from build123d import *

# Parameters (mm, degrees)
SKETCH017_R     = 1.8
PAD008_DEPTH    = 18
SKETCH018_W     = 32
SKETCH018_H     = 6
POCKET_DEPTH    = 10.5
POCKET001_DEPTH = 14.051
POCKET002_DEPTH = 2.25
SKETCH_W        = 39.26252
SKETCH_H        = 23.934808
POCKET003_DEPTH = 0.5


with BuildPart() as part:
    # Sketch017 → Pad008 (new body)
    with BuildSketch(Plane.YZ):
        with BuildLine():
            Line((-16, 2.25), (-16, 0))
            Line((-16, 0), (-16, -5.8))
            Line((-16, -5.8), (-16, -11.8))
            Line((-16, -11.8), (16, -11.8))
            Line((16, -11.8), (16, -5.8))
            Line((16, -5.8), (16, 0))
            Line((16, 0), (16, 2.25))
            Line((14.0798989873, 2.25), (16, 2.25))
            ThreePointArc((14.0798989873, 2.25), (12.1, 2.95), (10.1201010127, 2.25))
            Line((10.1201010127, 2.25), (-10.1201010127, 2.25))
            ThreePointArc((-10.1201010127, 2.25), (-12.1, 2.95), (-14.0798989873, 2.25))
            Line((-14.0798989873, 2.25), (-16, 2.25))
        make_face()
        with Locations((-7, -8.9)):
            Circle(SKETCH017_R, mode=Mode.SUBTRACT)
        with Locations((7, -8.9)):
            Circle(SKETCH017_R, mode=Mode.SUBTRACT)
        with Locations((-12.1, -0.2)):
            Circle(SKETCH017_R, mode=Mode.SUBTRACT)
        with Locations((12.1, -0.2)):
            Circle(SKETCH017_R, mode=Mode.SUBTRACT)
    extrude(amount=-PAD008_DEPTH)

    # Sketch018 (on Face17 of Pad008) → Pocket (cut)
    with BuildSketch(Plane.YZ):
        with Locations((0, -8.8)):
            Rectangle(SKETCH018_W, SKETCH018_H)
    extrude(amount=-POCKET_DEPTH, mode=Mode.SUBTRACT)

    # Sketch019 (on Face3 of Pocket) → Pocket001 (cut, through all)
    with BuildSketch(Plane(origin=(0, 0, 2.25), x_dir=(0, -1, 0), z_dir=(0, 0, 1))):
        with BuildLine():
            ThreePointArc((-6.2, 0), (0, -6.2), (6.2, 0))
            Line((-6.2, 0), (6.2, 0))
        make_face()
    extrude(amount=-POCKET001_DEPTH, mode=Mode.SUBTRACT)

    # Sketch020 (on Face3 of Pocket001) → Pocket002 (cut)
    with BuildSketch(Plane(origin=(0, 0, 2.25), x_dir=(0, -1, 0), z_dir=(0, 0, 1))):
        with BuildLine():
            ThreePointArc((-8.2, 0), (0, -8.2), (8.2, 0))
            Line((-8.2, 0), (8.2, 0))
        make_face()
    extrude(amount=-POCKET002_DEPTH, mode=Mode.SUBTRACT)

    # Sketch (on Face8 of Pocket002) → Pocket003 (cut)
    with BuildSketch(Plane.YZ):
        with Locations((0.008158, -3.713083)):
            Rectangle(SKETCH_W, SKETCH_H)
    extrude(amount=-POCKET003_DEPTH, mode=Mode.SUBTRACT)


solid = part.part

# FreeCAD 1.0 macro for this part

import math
import FreeCAD as App
import Part
import Sketcher
Q = App.Units.Quantity

doc = App.newDocument("Part")
body = doc.addObject("PartDesign::Body", "Body")

sketch1 = doc.addObject("Sketcher::SketchObject", "Sketch")
body.addObject(sketch1)
sketch1.AttachmentSupport = (doc.YZ_Plane, [""])
sketch1.MapMode = "FlatFace"
sketch1.addGeometry([
    Part.LineSegment(App.Vector(-16, 2.2, 0), App.Vector(-16, -11.8, 0)),
    Part.LineSegment(App.Vector(-16, -11.8, 0), App.Vector(16, -11.8, 0)),
    Part.LineSegment(App.Vector(16, -11.8, 0), App.Vector(16, 2.2, 0)),
    Part.LineSegment(App.Vector(16, 2.2, 0), App.Vector(14.1, 2.2, 0)),
    Part.ArcOfCircle(Part.Circle(App.Vector(12.1, -0.2, 0), App.Vector(0, 0, 1), 3.1), math.radians(51), math.radians(129)),
    Part.LineSegment(App.Vector(10.1, 2.2, 0), App.Vector(-10.1, 2.2, 0)),
    Part.ArcOfCircle(Part.Circle(App.Vector(-12.1, -0.2, 0), App.Vector(0, 0, 1), 3.1), math.radians(51), math.radians(129)),
    Part.LineSegment(App.Vector(-14.1, 2.2, 0), App.Vector(-16, 2.2, 0)),
    Part.Circle(App.Vector(-7, -8.9, 0), App.Vector(0, 0, 1), 1.8),
    Part.Circle(App.Vector(7, -8.9, 0), App.Vector(0, 0, 1), 1.8),
    Part.Circle(App.Vector(-12.1, -0.2, 0), App.Vector(0, 0, 1), 1.8),
    Part.Circle(App.Vector(12.1, -0.2, 0), App.Vector(0, 0, 1), 1.8),
], False)
sketch1.addConstraint([
    Sketcher.Constraint("Coincident", 0, 2, 1, 1),
    Sketcher.Constraint("Coincident", 1, 2, 2, 1),
    Sketcher.Constraint("Coincident", 2, 2, 3, 1),
    Sketcher.Constraint("Coincident", 3, 2, 4, 1),
    Sketcher.Constraint("Coincident", 4, 2, 5, 1),
    Sketcher.Constraint("Coincident", 5, 2, 6, 1),
    Sketcher.Constraint("Coincident", 6, 2, 7, 1),
    Sketcher.Constraint("Coincident", 7, 2, 0, 1),
    Sketcher.Constraint("Vertical", 0),
    Sketcher.Constraint("Horizontal", 1),
    Sketcher.Constraint("Vertical", 2),
    Sketcher.Constraint("Horizontal", 3),
    Sketcher.Constraint("Horizontal", 5),
    Sketcher.Constraint("Horizontal", 7),
    Sketcher.Constraint("Coincident", 10, 3, 6, 3),
    Sketcher.Constraint("Coincident", 11, 3, 4, 3),
    Sketcher.Constraint("Equal", 4, 6),
    Sketcher.Constraint("Equal", 8, 9),
    Sketcher.Constraint("Equal", 9, 10),
    Sketcher.Constraint("Equal", 10, 11),
    Sketcher.Constraint("Symmetric", 4, 3, 6, 3, -2),
    Sketcher.Constraint("Symmetric", 8, 3, 9, 3, -2),
    Sketcher.Constraint("Symmetric", 2, 2, 7, 2, -2),
    Sketcher.Constraint("Horizontal", 3, 2, 4, 2),
    Sketcher.Constraint("Diameter", 8, Q("3.6 mm")),
    Sketcher.Constraint("DistanceX", 1, 1, 1, 2, Q("32 mm")),
    Sketcher.Constraint("Radius", 4, Q("3.15 mm")),
    Sketcher.Constraint("DistanceX", 8, 3, -1, 1, Q("7 mm")),
    Sketcher.Constraint("DistanceY", 0, 2, 0, 1, Q("14.05 mm")),
    Sketcher.Constraint("DistanceX", -1, 1, 4, 3, Q("12.1 mm")),
    Sketcher.Constraint("DistanceY", 4, 3, -1, 1, Q("0.2 mm")),
    Sketcher.Constraint("DistanceY", 8, 3, -1, 1, Q("8.9 mm")),
    Sketcher.Constraint("DistanceY", 0, 2, -1, 1, Q("11.8 mm")),
])
pad1 = doc.addObject("PartDesign::Pad", "Pad")
body.addObject(pad1)
pad1.Profile = sketch1
pad1.Length = 18
pad1.Reversed = True

sketch2 = doc.addObject("Sketcher::SketchObject", "Sketch001")
body.addObject(sketch2)
sketch2.AttachmentSupport = (doc.YZ_Plane, [""])
sketch2.MapMode = "FlatFace"
sketch2.addGeometry([
    Part.LineSegment(App.Vector(-16, -6, 0), App.Vector(-16, -12, 0)),
    Part.LineSegment(App.Vector(-16, -12, 0), App.Vector(16, -12, 0)),
    Part.LineSegment(App.Vector(16, -12, 0), App.Vector(16, -6, 0)),
    Part.LineSegment(App.Vector(16, -6, 0), App.Vector(-16, -6, 0)),
], False)
sketch2.addConstraint([
    Sketcher.Constraint("Coincident", 0, 2, 1, 1),
    Sketcher.Constraint("Coincident", 1, 2, 2, 1),
    Sketcher.Constraint("Coincident", 2, 2, 3, 1),
    Sketcher.Constraint("Coincident", 3, 2, 0, 1),
    Sketcher.Constraint("Vertical", 0),
    Sketcher.Constraint("Horizontal", 1),
    Sketcher.Constraint("Vertical", 2),
    Sketcher.Constraint("Horizontal", 3),
    Sketcher.Constraint("DistanceX", 1, 1, 1, 2, Q("32 mm")),
    Sketcher.Constraint("DistanceY", 0, 2, 0, 1, Q("6 mm")),
    Sketcher.Constraint("DistanceX", 0, 2, -1, 1, Q("16 mm")),
    Sketcher.Constraint("DistanceY", 0, 2, -1, 1, Q("11.8 mm")),
])
pocket1 = doc.addObject("PartDesign::Pocket", "Pocket")
body.addObject(pocket1)
pocket1.Profile = sketch2
pocket1.Length = 10.5

sketch3 = doc.addObject("Sketcher::SketchObject", "Sketch002")
body.addObject(sketch3)
sketch3.AttachmentSupport = (doc.XY_Plane, [""])
sketch3.MapMode = "FlatFace"
sketch3.AttachmentOffset = App.Placement(App.Vector(0, 0, 2.25), App.Rotation())
sketch3.addGeometry([
    Part.ArcOfCircle(Part.Circle(App.Vector(0, 0, 0), App.Vector(0, 0, 1), 6), math.radians(90), math.radians(270)),
    Part.LineSegment(App.Vector(0, -6, 0), App.Vector(0, 6, 0)),
], False)
sketch3.addConstraint([
    Sketcher.Constraint("Coincident", 0, 1, 1, 2),
    Sketcher.Constraint("Coincident", 1, 1, 0, 2),
    Sketcher.Constraint("Vertical", 1),
    Sketcher.Constraint("Coincident", 0, 3, -1, 1),
    Sketcher.Constraint("PointOnObject", 0, 1, -2),
    Sketcher.Constraint("Radius", 0, Q("6.2 mm")),
])
pocket2 = doc.addObject("PartDesign::Pocket", "Pocket001")
body.addObject(pocket2)
pocket2.Profile = sketch3
pocket2.Type = "ThroughAll"

sketch4 = doc.addObject("Sketcher::SketchObject", "Sketch003")
body.addObject(sketch4)
sketch4.AttachmentSupport = (doc.XY_Plane, [""])
sketch4.MapMode = "FlatFace"
sketch4.AttachmentOffset = App.Placement(App.Vector(0, 0, 2.25), App.Rotation())
sketch4.addGeometry([
    Part.ArcOfCircle(Part.Circle(App.Vector(0, 0, 0), App.Vector(0, 0, 1), 8), math.radians(90), math.radians(270)),
    Part.LineSegment(App.Vector(0, -8, 0), App.Vector(0, 8, 0)),
], False)
sketch4.addConstraint([
    Sketcher.Constraint("Coincident", 0, 1, 1, 2),
    Sketcher.Constraint("Coincident", 1, 1, 0, 2),
    Sketcher.Constraint("Vertical", 1),
    Sketcher.Constraint("Coincident", 0, 3, -1, 1),
    Sketcher.Constraint("PointOnObject", 0, 1, -2),
    Sketcher.Constraint("Radius", 0, Q("8.2 mm")),
])
pocket3 = doc.addObject("PartDesign::Pocket", "Pocket002")
body.addObject(pocket3)
pocket3.Profile = sketch4
pocket3.Length = 2.25

sketch5 = doc.addObject("Sketcher::SketchObject", "Sketch004")
body.addObject(sketch5)
sketch5.AttachmentSupport = (doc.YZ_Plane, [""])
sketch5.MapMode = "FlatFace"
sketch5.addGeometry([
    Part.LineSegment(App.Vector(-20, 8, 0), App.Vector(-20, -16, 0)),
    Part.LineSegment(App.Vector(-20, -16, 0), App.Vector(20, -16, 0)),
    Part.LineSegment(App.Vector(20, -16, 0), App.Vector(20, 8, 0)),
    Part.LineSegment(App.Vector(20, 8, 0), App.Vector(-20, 8, 0)),
], False)
sketch5.addConstraint([
    Sketcher.Constraint("Coincident", 0, 2, 1, 1),
    Sketcher.Constraint("Coincident", 1, 2, 2, 1),
    Sketcher.Constraint("Coincident", 2, 2, 3, 1),
    Sketcher.Constraint("Coincident", 3, 2, 0, 1),
    Sketcher.Constraint("Vertical", 0),
    Sketcher.Constraint("Horizontal", 1),
    Sketcher.Constraint("Vertical", 2),
    Sketcher.Constraint("Horizontal", 3),
    Sketcher.Constraint("DistanceX", 1, 1, 1, 2, Q("39.26252 mm")),
    Sketcher.Constraint("DistanceX", 0, 2, -1, 1, Q("19.623102 mm")),
    Sketcher.Constraint("DistanceY", 0, 2, 0, 1, Q("23.934808 mm")),
    Sketcher.Constraint("DistanceY", -1, 1, 2, 2, Q("8.254321 mm")),
])
pocket4 = doc.addObject("PartDesign::Pocket", "Pocket003")
body.addObject(pocket4)
pocket4.Profile = sketch5
pocket4.Length = 0.5

doc.recompute()
